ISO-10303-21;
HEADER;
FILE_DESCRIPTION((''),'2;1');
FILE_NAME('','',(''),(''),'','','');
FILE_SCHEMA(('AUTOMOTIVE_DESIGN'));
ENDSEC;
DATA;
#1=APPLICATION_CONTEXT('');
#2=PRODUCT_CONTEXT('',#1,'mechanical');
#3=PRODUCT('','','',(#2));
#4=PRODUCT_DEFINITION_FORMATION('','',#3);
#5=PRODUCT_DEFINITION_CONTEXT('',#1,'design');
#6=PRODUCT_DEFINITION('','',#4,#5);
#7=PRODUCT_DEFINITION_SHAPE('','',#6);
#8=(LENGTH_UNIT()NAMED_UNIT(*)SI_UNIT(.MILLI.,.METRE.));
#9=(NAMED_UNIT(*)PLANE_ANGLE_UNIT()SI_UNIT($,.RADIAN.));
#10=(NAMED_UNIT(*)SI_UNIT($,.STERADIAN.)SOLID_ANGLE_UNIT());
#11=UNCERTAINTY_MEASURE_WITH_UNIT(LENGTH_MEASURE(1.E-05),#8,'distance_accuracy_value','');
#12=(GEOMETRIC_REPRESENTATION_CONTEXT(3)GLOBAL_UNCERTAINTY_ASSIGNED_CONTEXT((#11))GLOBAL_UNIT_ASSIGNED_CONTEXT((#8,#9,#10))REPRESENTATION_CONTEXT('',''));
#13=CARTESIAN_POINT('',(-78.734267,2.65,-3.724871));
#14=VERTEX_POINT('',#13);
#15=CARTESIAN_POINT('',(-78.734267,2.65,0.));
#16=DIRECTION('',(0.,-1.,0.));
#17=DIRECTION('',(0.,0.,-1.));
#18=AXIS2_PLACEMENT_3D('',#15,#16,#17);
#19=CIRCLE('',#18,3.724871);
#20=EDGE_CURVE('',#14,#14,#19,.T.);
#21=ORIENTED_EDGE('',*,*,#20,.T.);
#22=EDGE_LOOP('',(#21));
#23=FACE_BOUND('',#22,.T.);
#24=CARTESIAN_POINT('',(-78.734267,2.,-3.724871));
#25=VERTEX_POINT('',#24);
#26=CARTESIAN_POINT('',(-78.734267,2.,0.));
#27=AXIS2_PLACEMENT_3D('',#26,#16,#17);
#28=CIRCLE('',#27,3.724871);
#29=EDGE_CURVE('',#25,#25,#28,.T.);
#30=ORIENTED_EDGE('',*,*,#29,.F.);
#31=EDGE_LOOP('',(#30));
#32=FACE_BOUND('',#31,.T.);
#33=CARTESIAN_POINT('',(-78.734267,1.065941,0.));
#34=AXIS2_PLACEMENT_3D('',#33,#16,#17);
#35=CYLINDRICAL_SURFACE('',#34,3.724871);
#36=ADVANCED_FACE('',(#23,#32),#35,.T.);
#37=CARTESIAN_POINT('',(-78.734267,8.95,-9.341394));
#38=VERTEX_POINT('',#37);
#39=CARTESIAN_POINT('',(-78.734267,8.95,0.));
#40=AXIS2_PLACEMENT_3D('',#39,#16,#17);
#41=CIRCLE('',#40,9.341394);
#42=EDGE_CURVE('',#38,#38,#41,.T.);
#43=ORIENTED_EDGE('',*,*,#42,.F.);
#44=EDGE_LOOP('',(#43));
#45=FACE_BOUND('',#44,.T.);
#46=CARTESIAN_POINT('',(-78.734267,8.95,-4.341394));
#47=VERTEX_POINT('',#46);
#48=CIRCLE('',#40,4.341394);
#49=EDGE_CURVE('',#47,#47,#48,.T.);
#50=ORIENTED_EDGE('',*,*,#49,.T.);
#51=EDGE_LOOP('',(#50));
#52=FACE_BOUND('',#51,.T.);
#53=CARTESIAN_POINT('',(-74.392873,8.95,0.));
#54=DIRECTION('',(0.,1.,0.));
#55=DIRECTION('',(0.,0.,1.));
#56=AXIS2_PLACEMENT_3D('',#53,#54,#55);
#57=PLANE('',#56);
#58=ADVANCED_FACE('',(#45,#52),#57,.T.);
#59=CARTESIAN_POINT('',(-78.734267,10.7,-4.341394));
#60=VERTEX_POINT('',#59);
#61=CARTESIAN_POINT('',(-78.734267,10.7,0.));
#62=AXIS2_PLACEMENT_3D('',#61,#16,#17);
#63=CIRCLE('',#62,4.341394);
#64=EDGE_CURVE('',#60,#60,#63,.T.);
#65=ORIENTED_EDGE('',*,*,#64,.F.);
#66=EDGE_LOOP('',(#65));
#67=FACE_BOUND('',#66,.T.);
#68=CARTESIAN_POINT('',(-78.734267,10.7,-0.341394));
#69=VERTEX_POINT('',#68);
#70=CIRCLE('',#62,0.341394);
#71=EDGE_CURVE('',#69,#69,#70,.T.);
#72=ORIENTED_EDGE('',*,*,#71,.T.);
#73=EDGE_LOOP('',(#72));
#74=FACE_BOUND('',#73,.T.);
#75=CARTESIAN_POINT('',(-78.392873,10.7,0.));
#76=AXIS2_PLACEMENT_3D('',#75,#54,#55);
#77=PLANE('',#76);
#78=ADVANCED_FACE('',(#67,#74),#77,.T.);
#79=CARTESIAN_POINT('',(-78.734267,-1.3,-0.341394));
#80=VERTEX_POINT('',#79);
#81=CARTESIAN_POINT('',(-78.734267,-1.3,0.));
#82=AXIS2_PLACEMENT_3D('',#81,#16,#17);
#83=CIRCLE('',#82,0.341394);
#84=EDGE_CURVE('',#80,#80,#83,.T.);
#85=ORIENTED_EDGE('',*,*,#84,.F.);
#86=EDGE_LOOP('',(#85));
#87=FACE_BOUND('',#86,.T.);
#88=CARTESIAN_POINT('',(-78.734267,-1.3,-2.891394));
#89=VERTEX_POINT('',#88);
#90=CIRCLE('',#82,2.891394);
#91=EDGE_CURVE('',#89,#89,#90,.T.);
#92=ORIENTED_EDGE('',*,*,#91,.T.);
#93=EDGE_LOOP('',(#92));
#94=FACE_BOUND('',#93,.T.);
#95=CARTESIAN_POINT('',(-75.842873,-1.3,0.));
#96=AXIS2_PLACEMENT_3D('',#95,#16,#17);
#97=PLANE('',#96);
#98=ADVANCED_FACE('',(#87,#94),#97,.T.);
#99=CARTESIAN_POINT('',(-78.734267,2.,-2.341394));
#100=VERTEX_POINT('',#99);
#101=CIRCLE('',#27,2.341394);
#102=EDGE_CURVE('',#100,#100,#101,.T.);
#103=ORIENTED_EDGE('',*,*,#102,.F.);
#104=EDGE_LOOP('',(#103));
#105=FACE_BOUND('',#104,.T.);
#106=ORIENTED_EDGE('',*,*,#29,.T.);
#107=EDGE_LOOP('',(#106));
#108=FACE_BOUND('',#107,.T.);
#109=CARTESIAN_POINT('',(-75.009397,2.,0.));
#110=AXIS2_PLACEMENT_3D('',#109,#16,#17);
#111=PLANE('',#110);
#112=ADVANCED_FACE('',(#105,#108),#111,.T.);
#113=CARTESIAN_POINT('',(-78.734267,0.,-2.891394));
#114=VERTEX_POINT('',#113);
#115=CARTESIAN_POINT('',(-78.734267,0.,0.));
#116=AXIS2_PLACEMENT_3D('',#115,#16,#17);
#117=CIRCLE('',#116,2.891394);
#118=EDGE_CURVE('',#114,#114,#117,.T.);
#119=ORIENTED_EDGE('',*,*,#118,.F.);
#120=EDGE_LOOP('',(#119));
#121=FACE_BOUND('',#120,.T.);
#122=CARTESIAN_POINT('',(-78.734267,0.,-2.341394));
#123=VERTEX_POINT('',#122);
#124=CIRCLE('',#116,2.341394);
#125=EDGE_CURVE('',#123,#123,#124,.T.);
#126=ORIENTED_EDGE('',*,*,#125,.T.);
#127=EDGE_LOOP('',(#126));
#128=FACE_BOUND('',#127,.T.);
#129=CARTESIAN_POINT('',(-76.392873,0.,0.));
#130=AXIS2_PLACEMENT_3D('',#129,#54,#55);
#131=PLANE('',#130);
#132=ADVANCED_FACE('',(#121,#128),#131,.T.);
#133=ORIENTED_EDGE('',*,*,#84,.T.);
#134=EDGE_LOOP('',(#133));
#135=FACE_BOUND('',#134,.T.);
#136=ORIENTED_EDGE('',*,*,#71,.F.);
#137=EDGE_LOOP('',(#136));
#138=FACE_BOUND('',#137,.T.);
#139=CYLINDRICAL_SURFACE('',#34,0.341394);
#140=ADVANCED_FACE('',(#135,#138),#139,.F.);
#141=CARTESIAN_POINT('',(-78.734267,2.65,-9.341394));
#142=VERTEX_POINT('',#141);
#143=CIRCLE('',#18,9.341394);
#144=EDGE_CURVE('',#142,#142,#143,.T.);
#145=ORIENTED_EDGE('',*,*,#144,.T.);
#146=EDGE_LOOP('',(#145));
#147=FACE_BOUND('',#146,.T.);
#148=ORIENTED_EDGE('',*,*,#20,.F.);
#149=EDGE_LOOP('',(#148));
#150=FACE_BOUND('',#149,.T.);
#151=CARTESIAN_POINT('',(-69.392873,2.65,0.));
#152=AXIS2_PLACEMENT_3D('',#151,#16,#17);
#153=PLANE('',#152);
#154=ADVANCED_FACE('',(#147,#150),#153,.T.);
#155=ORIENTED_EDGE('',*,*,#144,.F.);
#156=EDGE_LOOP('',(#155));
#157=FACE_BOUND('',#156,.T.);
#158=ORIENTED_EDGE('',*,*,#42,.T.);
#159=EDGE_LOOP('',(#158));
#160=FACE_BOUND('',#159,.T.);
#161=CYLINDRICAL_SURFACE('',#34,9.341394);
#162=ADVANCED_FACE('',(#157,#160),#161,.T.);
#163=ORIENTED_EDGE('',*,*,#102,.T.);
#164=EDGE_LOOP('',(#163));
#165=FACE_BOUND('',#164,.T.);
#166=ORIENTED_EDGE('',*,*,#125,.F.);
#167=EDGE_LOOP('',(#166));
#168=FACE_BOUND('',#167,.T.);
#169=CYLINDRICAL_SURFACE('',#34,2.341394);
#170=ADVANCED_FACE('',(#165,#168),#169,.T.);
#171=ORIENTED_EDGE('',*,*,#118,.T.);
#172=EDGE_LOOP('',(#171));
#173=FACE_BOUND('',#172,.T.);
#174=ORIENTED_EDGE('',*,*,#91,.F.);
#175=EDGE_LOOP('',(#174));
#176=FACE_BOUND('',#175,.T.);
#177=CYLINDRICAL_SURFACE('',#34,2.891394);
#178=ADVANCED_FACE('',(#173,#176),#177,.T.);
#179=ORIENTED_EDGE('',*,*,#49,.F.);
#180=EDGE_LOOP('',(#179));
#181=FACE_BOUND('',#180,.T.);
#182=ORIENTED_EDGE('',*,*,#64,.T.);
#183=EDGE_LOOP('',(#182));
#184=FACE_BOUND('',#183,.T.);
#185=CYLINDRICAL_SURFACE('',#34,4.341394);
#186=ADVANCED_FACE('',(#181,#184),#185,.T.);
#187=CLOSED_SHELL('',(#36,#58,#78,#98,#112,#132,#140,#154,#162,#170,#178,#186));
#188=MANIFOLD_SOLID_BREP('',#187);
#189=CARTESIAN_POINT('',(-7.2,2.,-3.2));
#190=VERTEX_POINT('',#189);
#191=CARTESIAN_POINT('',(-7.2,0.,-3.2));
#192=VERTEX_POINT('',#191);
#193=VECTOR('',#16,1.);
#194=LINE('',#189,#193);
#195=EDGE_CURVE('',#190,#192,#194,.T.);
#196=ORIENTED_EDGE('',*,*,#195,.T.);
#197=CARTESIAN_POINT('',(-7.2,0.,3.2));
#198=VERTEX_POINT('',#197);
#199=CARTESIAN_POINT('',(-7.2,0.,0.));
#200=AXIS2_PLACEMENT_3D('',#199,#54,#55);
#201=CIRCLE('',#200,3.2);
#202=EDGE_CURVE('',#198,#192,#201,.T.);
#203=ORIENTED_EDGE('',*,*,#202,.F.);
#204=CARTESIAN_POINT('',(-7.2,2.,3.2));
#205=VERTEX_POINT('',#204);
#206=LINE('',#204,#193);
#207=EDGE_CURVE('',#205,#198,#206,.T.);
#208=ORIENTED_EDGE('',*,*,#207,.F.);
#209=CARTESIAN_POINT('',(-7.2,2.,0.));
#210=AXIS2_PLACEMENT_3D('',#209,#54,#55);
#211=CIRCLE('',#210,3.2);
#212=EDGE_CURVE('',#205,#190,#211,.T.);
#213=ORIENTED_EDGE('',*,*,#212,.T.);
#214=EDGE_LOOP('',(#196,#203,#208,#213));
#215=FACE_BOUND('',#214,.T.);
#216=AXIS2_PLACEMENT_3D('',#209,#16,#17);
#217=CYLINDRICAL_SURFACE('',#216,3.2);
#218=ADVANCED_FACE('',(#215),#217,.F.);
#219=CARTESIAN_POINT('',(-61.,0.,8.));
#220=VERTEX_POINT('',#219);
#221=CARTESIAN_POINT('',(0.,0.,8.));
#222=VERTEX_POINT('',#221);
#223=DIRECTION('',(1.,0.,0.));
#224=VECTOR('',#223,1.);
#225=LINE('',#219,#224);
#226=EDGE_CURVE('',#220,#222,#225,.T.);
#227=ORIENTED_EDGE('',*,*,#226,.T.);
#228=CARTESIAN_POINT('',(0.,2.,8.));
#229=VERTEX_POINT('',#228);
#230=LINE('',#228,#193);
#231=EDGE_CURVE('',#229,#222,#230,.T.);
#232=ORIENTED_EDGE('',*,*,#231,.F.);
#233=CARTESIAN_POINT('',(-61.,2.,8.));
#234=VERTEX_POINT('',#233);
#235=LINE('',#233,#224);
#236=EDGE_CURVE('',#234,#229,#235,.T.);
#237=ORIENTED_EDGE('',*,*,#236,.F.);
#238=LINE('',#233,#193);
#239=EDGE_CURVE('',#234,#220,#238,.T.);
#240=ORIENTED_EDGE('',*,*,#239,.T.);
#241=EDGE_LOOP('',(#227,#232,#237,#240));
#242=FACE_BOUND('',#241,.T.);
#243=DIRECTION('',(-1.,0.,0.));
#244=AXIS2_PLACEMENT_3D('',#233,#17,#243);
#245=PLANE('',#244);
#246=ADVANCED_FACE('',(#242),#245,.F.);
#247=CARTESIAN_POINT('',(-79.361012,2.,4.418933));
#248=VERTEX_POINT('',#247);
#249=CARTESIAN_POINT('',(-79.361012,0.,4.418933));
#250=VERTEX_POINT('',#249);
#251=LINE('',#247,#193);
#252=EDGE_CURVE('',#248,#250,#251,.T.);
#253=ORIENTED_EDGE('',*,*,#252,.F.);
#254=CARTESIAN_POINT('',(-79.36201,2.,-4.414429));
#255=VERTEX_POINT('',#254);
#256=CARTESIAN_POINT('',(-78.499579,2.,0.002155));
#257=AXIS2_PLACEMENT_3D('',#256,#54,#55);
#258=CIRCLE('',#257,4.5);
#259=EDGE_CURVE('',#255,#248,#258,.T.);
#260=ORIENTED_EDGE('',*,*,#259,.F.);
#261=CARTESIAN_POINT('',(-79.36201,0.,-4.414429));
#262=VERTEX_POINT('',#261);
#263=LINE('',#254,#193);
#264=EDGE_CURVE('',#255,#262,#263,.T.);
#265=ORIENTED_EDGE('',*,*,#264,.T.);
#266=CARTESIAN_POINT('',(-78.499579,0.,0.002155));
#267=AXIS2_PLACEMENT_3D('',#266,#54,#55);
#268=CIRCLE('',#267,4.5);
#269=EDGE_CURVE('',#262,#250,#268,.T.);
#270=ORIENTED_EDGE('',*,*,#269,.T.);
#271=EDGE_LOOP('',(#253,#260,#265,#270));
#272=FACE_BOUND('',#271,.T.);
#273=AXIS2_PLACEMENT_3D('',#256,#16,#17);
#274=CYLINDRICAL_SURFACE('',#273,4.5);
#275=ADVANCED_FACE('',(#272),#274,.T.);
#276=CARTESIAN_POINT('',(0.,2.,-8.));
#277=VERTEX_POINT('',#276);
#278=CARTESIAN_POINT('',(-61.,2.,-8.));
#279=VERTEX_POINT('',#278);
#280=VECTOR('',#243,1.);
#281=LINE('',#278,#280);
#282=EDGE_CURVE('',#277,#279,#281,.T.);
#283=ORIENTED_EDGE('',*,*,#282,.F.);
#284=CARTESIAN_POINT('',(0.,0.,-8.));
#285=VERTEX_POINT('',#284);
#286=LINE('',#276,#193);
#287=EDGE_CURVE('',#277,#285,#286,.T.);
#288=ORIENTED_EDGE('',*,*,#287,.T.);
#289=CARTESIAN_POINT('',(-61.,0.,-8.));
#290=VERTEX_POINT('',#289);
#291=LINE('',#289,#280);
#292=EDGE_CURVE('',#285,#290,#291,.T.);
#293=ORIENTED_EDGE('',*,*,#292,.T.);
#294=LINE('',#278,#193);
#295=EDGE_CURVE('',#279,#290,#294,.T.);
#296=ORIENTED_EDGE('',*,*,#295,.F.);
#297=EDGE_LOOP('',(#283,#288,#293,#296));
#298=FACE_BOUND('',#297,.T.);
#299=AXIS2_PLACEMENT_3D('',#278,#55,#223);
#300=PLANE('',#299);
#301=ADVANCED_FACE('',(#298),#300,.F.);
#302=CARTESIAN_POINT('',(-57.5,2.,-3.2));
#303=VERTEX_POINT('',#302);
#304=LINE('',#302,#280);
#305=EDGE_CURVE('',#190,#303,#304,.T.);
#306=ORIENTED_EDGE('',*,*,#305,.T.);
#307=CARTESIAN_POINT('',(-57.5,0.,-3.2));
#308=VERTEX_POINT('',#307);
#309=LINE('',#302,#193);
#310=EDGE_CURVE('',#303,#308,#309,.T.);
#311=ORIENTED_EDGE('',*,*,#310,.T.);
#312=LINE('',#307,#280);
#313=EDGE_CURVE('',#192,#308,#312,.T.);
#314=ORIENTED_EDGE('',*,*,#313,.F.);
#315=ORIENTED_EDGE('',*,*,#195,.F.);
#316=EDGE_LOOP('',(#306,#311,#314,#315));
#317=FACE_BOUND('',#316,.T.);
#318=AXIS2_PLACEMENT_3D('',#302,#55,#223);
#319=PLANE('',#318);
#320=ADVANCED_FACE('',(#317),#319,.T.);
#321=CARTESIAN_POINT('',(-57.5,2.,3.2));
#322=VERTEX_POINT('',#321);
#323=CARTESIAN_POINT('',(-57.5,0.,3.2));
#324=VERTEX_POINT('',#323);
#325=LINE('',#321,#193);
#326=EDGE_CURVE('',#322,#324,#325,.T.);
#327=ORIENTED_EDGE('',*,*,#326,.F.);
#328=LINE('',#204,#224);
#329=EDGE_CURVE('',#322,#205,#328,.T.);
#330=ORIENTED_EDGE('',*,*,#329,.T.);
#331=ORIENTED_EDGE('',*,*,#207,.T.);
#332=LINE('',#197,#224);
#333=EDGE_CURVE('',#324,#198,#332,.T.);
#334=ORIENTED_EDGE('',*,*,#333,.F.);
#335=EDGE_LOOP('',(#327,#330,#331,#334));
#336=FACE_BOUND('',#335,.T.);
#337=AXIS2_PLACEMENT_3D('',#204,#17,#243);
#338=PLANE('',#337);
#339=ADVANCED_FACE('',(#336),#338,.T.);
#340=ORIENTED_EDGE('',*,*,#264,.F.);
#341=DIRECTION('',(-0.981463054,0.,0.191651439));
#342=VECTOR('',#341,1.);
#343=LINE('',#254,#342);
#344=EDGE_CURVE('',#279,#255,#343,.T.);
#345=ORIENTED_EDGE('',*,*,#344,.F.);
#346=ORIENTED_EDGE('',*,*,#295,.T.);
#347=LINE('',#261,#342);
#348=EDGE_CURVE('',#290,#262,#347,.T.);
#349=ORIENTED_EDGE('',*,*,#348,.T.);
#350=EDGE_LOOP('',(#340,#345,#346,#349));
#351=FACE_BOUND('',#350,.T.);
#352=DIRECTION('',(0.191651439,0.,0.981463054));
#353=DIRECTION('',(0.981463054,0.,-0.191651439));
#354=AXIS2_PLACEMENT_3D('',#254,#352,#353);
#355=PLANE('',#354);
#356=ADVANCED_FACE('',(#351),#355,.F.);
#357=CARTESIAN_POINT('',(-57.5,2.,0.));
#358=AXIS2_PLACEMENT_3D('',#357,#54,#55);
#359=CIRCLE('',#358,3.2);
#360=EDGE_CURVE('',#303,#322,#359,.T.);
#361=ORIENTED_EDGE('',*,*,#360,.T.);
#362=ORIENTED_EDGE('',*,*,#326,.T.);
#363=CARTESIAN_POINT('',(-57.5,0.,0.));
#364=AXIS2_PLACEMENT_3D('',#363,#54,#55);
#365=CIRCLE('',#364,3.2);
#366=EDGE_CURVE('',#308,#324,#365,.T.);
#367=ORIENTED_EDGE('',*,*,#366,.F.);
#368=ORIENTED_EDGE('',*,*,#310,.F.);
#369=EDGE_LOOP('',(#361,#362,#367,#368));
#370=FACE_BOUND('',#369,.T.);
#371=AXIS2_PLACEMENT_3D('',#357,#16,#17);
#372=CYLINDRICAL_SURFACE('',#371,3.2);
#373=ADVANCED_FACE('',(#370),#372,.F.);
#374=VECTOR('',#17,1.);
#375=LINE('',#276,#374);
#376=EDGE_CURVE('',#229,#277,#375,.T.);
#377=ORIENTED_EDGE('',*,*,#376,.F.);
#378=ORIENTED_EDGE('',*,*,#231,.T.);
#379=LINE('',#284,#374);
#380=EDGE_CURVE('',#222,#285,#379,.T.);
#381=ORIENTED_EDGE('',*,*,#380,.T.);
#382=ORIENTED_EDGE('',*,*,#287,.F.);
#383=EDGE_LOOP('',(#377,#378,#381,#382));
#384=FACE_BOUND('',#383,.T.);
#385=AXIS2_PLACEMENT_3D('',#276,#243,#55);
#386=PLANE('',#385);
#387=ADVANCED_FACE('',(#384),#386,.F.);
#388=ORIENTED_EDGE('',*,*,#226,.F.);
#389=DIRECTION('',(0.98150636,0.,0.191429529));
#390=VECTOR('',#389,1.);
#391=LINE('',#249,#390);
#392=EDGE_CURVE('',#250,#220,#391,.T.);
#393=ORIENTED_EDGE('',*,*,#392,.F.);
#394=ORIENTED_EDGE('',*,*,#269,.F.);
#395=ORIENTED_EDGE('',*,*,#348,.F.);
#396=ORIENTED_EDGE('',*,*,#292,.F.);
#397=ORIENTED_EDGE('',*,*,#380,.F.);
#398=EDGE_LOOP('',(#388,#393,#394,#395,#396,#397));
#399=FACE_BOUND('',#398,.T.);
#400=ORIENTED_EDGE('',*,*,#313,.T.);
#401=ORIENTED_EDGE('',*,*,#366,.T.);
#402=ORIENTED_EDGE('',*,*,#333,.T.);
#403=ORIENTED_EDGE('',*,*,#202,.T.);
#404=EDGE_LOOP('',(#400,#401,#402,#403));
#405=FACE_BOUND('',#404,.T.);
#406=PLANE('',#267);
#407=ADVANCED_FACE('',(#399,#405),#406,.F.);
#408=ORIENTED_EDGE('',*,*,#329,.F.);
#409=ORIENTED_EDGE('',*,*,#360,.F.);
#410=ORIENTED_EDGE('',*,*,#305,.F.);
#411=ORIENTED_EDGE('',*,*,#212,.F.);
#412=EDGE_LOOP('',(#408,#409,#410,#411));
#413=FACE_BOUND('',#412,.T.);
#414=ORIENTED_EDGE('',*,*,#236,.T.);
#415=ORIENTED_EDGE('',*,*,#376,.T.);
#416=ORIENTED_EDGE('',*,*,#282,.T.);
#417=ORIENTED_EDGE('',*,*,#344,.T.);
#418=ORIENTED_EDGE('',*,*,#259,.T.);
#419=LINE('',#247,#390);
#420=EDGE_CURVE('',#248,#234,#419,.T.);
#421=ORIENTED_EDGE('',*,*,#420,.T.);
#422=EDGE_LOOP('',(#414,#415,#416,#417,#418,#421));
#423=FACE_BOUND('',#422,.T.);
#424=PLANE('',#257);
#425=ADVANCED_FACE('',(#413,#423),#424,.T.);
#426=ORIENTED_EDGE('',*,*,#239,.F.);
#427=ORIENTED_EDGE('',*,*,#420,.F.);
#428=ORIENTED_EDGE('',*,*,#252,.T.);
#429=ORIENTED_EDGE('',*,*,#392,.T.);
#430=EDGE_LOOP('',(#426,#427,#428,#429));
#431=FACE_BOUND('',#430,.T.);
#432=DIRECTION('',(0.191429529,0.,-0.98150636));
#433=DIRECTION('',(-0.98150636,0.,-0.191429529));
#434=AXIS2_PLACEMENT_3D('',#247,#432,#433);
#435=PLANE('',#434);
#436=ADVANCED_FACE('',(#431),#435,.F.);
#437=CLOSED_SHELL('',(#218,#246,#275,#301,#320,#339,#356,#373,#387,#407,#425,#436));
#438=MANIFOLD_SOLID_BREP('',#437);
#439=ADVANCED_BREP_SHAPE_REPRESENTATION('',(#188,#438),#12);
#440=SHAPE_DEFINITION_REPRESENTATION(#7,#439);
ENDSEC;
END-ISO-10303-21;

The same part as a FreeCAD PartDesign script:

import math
import FreeCAD as App
import Part
import Sketcher

V = App.Vector
Q = App.Units.Quantity


def add_polygon(sketch, points):
    """Adds a closed chain of lines whose ends are joined by coincident constraints."""
    first, n = sketch.GeometryCount, len(points)
    for a, b in zip(points, points[1:] + points[:1]):
        sketch.addGeometry(Part.LineSegment(App.Vector(*a, 0), App.Vector(*b, 0)), False)
    for i in range(n):
        sketch.addConstraint(Sketcher.Constraint("Coincident", first + i, 2, first + (i + 1) % n, 1))

doc = App.newDocument("Part")
body = doc.addObject("PartDesign::Body", "Body")

sketch1 = body.newObject("Sketcher::SketchObject", "Sketch")
sketch1.AttachmentSupport = (doc.getObject("XZ_Plane"), [""])
sketch1.MapMode = "FlatFace"
sketch1.addGeometry(Part.LineSegment(V(0, -8, 0), V(-61, -8, 0)), False)
sketch1.addGeometry(Part.LineSegment(V(-61, -8, 0), V(-79.36201, -4.414429, 0)), False)
sketch1.addGeometry(Part.ArcOfCircle(Part.Circle(V(-78.499579, 0.002155, 0), V(0, 0, 1), 4.5), math.radians(101.036222), math.radians(258.950824)), False)
sketch1.addGeometry(Part.LineSegment(V(-79.361012, 4.418933, 0), V(-61, 8, 0)), False)
sketch1.addGeometry(Part.LineSegment(V(-61, 8, 0), V(0, 8, 0)), False)
sketch1.addGeometry(Part.LineSegment(V(0, 8, 0), V(0, -8, 0)), False)
sketch1.addGeometry(Part.LineSegment(V(-57.5, -3.2, 0), V(-7.2, -3.2, 0)), False)
sketch1.addGeometry(Part.ArcOfCircle(Part.Circle(V(-7.2, 0, 0), V(0, 0, 1), 3.2), math.radians(-90), math.radians(90)), False)
sketch1.addGeometry(Part.LineSegment(V(-7.2, 3.2, 0), V(-57.5, 3.2, 0)), False)
sketch1.addGeometry(Part.ArcOfCircle(Part.Circle(V(-57.5, 0, 0), V(0, 0, 1), 3.2), math.radians(90), math.radians(270)), False)
sketch1.addConstraint(Sketcher.Constraint("Coincident", 0, 2, 1, 1))
sketch1.addConstraint(Sketcher.Constraint("Tangent", 1, 2, 2, 2))
sketch1.addConstraint(Sketcher.Constraint("Tangent", 2, 1, 3, 1))
sketch1.addConstraint(Sketcher.Constraint("Coincident", 3, 2, 4, 1))
sketch1.addConstraint(Sketcher.Constraint("Coincident", 4, 2, 5, 1))
sketch1.addConstraint(Sketcher.Constraint("Coincident", 5, 2, 0, 1))
sketch1.addConstraint(Sketcher.Constraint("Tangent", 6, 2, 7, 1))
sketch1.addConstraint(Sketcher.Constraint("Tangent", 7, 2, 8, 1))
sketch1.addConstraint(Sketcher.Constraint("Tangent", 8, 2, 9, 1))
sketch1.addConstraint(Sketcher.Constraint("Tangent", 9, 2, 6, 1))
sketch1.addConstraint(Sketcher.Constraint("Horizontal", 0))
sketch1.addConstraint(Sketcher.Constraint("Horizontal", 4))
sketch1.addConstraint(Sketcher.Constraint("Vertical", 5))
sketch1.addConstraint(Sketcher.Constraint("Horizontal", 6))
sketch1.addConstraint(Sketcher.Constraint("Horizontal", 8))
sketch1.addConstraint(Sketcher.Constraint("Symmetric", 4, 2, 5, 2, -1, 1))
sketch1.addConstraint(Sketcher.Constraint("PointOnObject", 7, 3, -1))
sketch1.addConstraint(Sketcher.Constraint("Vertical", 0, 2, 3, 2))
sketch1.addConstraint(Sketcher.Constraint("Radius", 2, Q("4.5 mm")))
sketch1.addConstraint(Sketcher.Constraint("Radius", 7, Q("3.2 mm")))
sketch1.addConstraint(Sketcher.Constraint("DistanceX", 0, 2, 0, 1, Q("61 mm")))
sketch1.addConstraint(Sketcher.Constraint("DistanceY", 5, 2, 5, 1, Q("16 mm")))
sketch1.addConstraint(Sketcher.Constraint("DistanceX", 6, 1, 6, 2, Q("50.3 mm")))
sketch1.addConstraint(Sketcher.Constraint("DistanceX", 7, 3, -1, 1, Q("7.2 mm")))
sketch1.addConstraint(Sketcher.Constraint("DistanceX", 1, 2, 2, 1, Q("0.000999 mm")))
sketch1.addConstraint(Sketcher.Constraint("Distance", 3, Q("18.706972 mm")))
pad1 = body.newObject("PartDesign::Pad", "Pad")
pad1.Profile = sketch1
pad1.Length = 2
pad1.Reversed = True
body2 = doc.addObject("PartDesign::Body", "Body001")

sketch2 = body2.newObject("Sketcher::SketchObject", "Sketch001")
sketch2.AttachmentSupport = (doc.getObject("XY_Plane001"), [""])
sketch2.MapMode = "FlatFace"
add_polygon(sketch2, [(-75.842873, 0), (-76.392873, 0), (-76.392873, 2), (-75.009397, 2), (-75.009397, 2.65), (-69.392873, 2.65), (-69.392873, 8.95), (-74.392873, 8.95), (-74.392873, 10.7), (-78.392873, 10.7), (-78.392873, -1.3), (-75.842873, -1.3)])
sketch2.addGeometry(Part.LineSegment(V(-78.734267, -1.3, 0), V(-78.734267, 10.7, 0)), True)
sketch2.addConstraint(Sketcher.Constraint("Horizontal", 0))
sketch2.addConstraint(Sketcher.Constraint("Vertical", 1))
sketch2.addConstraint(Sketcher.Constraint("Horizontal", 2))
sketch2.addConstraint(Sketcher.Constraint("Vertical", 3))
sketch2.addConstraint(Sketcher.Constraint("Horizontal", 4))
sketch2.addConstraint(Sketcher.Constraint("Vertical", 5))
sketch2.addConstraint(Sketcher.Constraint("Horizontal", 6))
sketch2.addConstraint(Sketcher.Constraint("Vertical", 7))
sketch2.addConstraint(Sketcher.Constraint("Horizontal", 8))
sketch2.addConstraint(Sketcher.Constraint("Vertical", 9))
sketch2.addConstraint(Sketcher.Constraint("Horizontal", 10))
sketch2.addConstraint(Sketcher.Constraint("Vertical", 11))
sketch2.addConstraint(Sketcher.Constraint("Vertical", 12))
sketch2.addConstraint(Sketcher.Constraint("PointOnObject", 0, 2, -1))
sketch2.addConstraint(Sketcher.Constraint("Horizontal", 10, 2, 12, 1))
sketch2.addConstraint(Sketcher.Constraint("Horizontal", 8, 2, 12, 2))
sketch2.addConstraint(Sketcher.Constraint("DistanceX", 6, 2, 6, 1, Q("5 mm")))
sketch2.addConstraint(Sketcher.Constraint("DistanceX", 8, 2, 8, 1, Q("4 mm")))
sketch2.addConstraint(Sketcher.Constraint("DistanceY", 1, 1, 1, 2, Q("2 mm")))
sketch2.addConstraint(Sketcher.Constraint("DistanceY", 9, 2, 9, 1, Q("12 mm")))
sketch2.addConstraint(Sketcher.Constraint("DistanceY", 5, 1, 5, 2, Q("6.3 mm")))
sketch2.addConstraint(Sketcher.Constraint("DistanceY", 11, 1, 11, 2, Q("1.3 mm")))
sketch2.addConstraint(Sketcher.Constraint("DistanceX", 1, 2, 4, 2, Q("7 mm")))
sketch2.addConstraint(Sketcher.Constraint("DistanceX", 0, 2, 0, 1, Q("0.55 mm")))
sketch2.addConstraint(Sketcher.Constraint("DistanceY", 3, 1, 3, 2, Q("0.65 mm")))
sketch2.addConstraint(Sketcher.Constraint("DistanceX", 2, 1, 2, 2, Q("1.383476 mm")))
sketch2.addConstraint(Sketcher.Constraint("DistanceX", 12, 2, 3, 2, Q("3.724871 mm")))
sketch2.addConstraint(Sketcher.Constraint("DistanceX", 0, 2, -1, 1, Q("76.392873 mm")))
revolution = body2.newObject("PartDesign::Revolution", "Revolution")
revolution.Profile = sketch2
revolution.ReferenceAxis = (sketch2, ["Axis0"])
revolution.Angle = 360

doc.recompute()
